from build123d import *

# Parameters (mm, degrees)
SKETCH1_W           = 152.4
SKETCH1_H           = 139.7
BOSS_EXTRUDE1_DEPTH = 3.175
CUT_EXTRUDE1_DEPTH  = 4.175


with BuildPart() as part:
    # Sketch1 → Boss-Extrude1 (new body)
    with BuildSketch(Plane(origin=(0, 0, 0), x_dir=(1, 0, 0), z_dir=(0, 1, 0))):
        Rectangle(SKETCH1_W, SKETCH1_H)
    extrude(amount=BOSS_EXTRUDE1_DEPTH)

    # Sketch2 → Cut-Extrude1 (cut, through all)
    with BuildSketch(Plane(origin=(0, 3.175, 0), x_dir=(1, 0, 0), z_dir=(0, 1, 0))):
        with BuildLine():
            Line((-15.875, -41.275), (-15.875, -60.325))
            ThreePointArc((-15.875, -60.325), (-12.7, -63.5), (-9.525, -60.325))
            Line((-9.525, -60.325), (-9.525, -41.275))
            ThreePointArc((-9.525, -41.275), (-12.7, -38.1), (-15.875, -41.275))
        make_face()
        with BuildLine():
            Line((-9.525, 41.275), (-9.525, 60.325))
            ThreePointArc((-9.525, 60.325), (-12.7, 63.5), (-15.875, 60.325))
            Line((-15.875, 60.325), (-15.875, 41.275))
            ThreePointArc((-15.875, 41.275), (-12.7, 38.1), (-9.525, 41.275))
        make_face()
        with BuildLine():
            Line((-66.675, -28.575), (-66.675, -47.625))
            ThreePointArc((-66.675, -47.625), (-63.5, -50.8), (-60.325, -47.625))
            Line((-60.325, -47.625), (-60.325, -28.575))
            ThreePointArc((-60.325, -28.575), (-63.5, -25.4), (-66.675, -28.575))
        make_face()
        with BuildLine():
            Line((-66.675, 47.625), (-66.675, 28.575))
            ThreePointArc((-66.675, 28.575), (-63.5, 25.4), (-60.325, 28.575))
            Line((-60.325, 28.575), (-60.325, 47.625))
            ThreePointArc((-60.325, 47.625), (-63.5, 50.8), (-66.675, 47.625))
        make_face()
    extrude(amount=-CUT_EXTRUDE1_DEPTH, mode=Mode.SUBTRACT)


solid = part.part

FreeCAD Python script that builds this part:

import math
import FreeCAD as App
import Part
import Sketcher
Q = App.Units.Quantity


def add_polygon(sketch, points):
    """Adds a closed chain of lines whose ends are joined by coincident constraints."""
    first, n = sketch.GeometryCount, len(points)
    for a, b in zip(points, points[1:] + points[:1]):
        sketch.addGeometry(Part.LineSegment(App.Vector(*a, 0), App.Vector(*b, 0)), False)
    for i in range(n):
        sketch.addConstraint(Sketcher.Constraint("Coincident", first + i, 2, first + (i + 1) % n, 1))

doc = App.newDocument("Part")
body = doc.addObject("PartDesign::Body", "Body")

sketch1 = body.newObject("Sketcher::SketchObject", "Sketch")
sketch1.AttachmentSupport = (doc.getObject("XZ_Plane"), [""])
sketch1.MapMode = "FlatFace"
add_polygon(sketch1, [(-76, -70), (-76, 70), (76, 70), (76, -70)])
sketch1.addConstraint([
    Sketcher.Constraint("Vertical", 0),
    Sketcher.Constraint("Horizontal", 1),
    Sketcher.Constraint("Vertical", 2),
    Sketcher.Constraint("Horizontal", 3),
    Sketcher.Constraint("Symmetric", 0, 2, 2, 2, -1, 1),
    Sketcher.Constraint("DistanceX", 1, 1, 1, 2, Q("6 in")),
    Sketcher.Constraint("DistanceY", 0, 1, 0, 2, Q("5.5 in")),
])
pad1 = body.newObject("PartDesign::Pad", "Pad")
pad1.Profile = sketch1
pad1.Length = Q("0.125 in")
pad1.Reversed = True

sketch2 = body.newObject("Sketcher::SketchObject", "Sketch001")
sketch2.AttachmentSupport = (doc.getObject("XZ_Plane"), [""])
sketch2.MapMode = "FlatFace"
sketch2.AttachmentOffset = App.Placement(App.Vector(0, 0, -0.125 * 25.4), App.Rotation())
sketch2.addGeometry([
    Part.LineSegment(App.Vector(-15.9, 41.3, 0), App.Vector(-15.9, 60.3, 0)),
    Part.ArcOfCircle(Part.Circle(App.Vector(-12.7, 60.3, 0), App.Vector(0, 0, 1), 3.2), math.radians(0), math.radians(180)),
    Part.LineSegment(App.Vector(-9.5, 60.3, 0), App.Vector(-9.5, 41.3, 0)),
    Part.ArcOfCircle(Part.Circle(App.Vector(-12.7, 41.3, 0), App.Vector(0, 0, 1), 3.2), math.radians(180), math.radians(360)),
    Part.LineSegment(App.Vector(-9.5, -41.3, 0), App.Vector(-9.5, -60.3, 0)),
    Part.ArcOfCircle(Part.Circle(App.Vector(-12.7, -60.3, 0), App.Vector(0, 0, 1), 3.2), math.radians(180), math.radians(360)),
    Part.LineSegment(App.Vector(-15.9, -60.3, 0), App.Vector(-15.9, -41.3, 0)),
    Part.ArcOfCircle(Part.Circle(App.Vector(-12.7, -41.3, 0), App.Vector(0, 0, 1), 3.2), math.radians(0), math.radians(180)),
    Part.LineSegment(App.Vector(-66.7, 28.6, 0), App.Vector(-66.7, 47.6, 0)),
    Part.ArcOfCircle(Part.Circle(App.Vector(-63.5, 47.6, 0), App.Vector(0, 0, 1), 3.2), math.radians(0), math.radians(180)),
    Part.LineSegment(App.Vector(-60.3, 47.6, 0), App.Vector(-60.3, 28.6, 0)),
    Part.ArcOfCircle(Part.Circle(App.Vector(-63.5, 28.6, 0), App.Vector(0, 0, 1), 3.2), math.radians(180), math.radians(360)),
    Part.LineSegment(App.Vector(-66.7, -47.6, 0), App.Vector(-66.7, -28.6, 0)),
    Part.ArcOfCircle(Part.Circle(App.Vector(-63.5, -28.6, 0), App.Vector(0, 0, 1), 3.2), math.radians(0), math.radians(180)),
    Part.LineSegment(App.Vector(-60.3, -28.6, 0), App.Vector(-60.3, -47.6, 0)),
    Part.ArcOfCircle(Part.Circle(App.Vector(-63.5, -47.6, 0), App.Vector(0, 0, 1), 3.2), math.radians(180), math.radians(360)),
], False)
sketch2.addConstraint([
    Sketcher.Constraint("Tangent", 0, 2, 1, 2),
    Sketcher.Constraint("Tangent", 1, 1, 2, 1),
    Sketcher.Constraint("Tangent", 2, 2, 3, 2),
    Sketcher.Constraint("Tangent", 3, 1, 0, 1),
    Sketcher.Constraint("Tangent", 4, 2, 5, 2),
    Sketcher.Constraint("Tangent", 5, 1, 6, 1),
    Sketcher.Constraint("Tangent", 6, 2, 7, 2),
    Sketcher.Constraint("Tangent", 7, 1, 4, 1),
    Sketcher.Constraint("Tangent", 8, 2, 9, 2),
    Sketcher.Constraint("Tangent", 9, 1, 10, 1),
    Sketcher.Constraint("Tangent", 10, 2, 11, 2),
    Sketcher.Constraint("Tangent", 11, 1, 8, 1),
    Sketcher.Constraint("Tangent", 12, 2, 13, 2),
    Sketcher.Constraint("Tangent", 13, 1, 14, 1),
    Sketcher.Constraint("Tangent", 14, 2, 15, 2),
    Sketcher.Constraint("Tangent", 15, 1, 12, 1),
    Sketcher.Constraint("Vertical", 0),
    Sketcher.Constraint("Vertical", 2),
    Sketcher.Constraint("Vertical", 4),
    Sketcher.Constraint("Vertical", 6),
    Sketcher.Constraint("Vertical", 8),
    Sketcher.Constraint("Vertical", 10),
    Sketcher.Constraint("Vertical", 12),
    Sketcher.Constraint("Vertical", 14),
    Sketcher.Constraint("Equal", 3, 5),
    Sketcher.Constraint("Equal", 7, 9),
    Sketcher.Constraint("Equal", 11, 13),
    Sketcher.Constraint("Symmetric", 1, 3, 5, 3, -1),
    Sketcher.Constraint("Symmetric", 11, 3, 13, 3, -1),
    Sketcher.Constraint("Equal", 2, 4),
    Sketcher.Constraint("Equal", 6, 8),
    Sketcher.Constraint("Equal", 10, 12),
    Sketcher.Constraint("Radius", 1, Q("0.125 in")),
    Sketcher.Constraint("DistanceY", 5, 3, 3, 3, Q("4 in")),
    Sketcher.Constraint("DistanceX", 9, 3, 3, 3, Q("2 in")),
    Sketcher.Constraint("DistanceY", 13, 3, 9, 3, Q("3 in")),
    Sketcher.Constraint("DistanceY", 0, 1, 0, 2, Q("0.75 in")),
    Sketcher.Constraint("DistanceX", 1, 3, -1, 1, Q("0.5 in")),
])
pocket1 = body.newObject("PartDesign::Pocket", "Pocket")
pocket1.Profile = sketch2
pocket1.Type = "ThroughAll"
pocket1.Reversed = True

doc.recompute()
